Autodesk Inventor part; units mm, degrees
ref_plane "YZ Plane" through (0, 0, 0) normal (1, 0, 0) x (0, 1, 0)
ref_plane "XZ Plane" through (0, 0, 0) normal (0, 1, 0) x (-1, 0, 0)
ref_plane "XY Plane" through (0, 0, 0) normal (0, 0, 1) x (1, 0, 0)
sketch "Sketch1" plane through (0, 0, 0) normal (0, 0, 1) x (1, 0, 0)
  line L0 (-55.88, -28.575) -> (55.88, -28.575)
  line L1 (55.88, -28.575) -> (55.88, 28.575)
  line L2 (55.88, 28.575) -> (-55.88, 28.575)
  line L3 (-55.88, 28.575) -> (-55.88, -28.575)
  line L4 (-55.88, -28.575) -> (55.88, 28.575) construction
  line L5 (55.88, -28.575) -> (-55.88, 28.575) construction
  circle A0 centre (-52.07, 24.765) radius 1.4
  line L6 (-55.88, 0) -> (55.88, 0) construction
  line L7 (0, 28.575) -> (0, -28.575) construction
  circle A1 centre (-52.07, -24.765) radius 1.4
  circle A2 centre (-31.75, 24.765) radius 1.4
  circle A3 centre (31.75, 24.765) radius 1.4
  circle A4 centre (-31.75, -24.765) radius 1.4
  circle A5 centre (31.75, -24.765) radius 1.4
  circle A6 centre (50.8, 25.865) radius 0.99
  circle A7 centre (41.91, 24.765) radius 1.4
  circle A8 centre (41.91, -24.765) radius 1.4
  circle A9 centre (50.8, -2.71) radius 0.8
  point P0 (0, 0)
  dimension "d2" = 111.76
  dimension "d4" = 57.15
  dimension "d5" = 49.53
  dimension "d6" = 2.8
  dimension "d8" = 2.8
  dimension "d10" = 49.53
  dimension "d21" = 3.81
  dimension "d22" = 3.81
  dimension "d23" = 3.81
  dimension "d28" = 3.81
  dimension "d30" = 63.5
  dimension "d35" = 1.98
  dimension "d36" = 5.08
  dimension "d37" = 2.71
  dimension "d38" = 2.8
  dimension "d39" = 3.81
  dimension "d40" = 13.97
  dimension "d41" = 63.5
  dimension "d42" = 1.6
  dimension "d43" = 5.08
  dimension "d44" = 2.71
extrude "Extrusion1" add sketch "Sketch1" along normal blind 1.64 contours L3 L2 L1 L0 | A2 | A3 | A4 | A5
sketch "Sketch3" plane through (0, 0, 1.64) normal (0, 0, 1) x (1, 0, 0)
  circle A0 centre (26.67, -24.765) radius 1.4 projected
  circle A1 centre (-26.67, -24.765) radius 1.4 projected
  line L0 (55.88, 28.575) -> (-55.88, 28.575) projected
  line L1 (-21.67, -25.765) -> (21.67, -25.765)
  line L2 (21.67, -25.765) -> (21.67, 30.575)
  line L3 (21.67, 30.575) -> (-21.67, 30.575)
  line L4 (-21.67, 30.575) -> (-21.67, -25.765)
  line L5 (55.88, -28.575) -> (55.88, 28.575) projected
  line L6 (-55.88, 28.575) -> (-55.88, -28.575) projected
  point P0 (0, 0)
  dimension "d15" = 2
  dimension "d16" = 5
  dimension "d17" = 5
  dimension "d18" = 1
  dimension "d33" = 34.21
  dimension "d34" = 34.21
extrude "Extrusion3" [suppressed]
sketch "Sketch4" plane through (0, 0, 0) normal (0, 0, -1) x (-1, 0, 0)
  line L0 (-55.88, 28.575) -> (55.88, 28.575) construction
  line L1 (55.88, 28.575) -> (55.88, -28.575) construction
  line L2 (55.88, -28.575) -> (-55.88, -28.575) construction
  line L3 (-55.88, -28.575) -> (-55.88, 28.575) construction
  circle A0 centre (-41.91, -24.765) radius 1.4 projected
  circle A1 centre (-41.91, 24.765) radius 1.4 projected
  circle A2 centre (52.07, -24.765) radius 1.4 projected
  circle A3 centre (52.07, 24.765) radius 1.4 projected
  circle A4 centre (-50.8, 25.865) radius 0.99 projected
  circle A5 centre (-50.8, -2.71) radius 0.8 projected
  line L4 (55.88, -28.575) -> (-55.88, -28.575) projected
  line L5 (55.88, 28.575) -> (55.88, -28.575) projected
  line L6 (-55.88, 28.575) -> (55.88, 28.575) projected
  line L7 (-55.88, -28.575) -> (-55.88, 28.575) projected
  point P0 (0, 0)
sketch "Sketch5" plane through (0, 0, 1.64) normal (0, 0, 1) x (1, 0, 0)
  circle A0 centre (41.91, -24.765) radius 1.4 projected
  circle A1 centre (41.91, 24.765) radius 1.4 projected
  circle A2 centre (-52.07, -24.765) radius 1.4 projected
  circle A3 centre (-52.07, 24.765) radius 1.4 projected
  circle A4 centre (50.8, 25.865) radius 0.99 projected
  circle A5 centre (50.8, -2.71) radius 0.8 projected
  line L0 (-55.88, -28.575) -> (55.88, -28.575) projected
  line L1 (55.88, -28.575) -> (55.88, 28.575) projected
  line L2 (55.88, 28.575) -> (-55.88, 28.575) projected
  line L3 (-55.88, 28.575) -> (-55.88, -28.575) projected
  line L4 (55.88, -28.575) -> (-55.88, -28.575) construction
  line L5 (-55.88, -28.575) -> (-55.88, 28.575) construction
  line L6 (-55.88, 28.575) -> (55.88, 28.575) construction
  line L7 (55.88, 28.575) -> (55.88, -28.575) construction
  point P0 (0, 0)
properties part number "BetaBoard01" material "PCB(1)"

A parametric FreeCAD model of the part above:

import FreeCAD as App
import Part
import Sketcher

V = App.Vector
Q = App.Units.Quantity


def add_polygon(sketch, points):
    """Adds a closed chain of lines whose ends are joined by coincident constraints."""
    first, n = sketch.GeometryCount, len(points)
    for a, b in zip(points, points[1:] + points[:1]):
        sketch.addGeometry(Part.LineSegment(App.Vector(*a, 0), App.Vector(*b, 0)), False)
    for i in range(n):
        sketch.addConstraint(Sketcher.Constraint("Coincident", first + i, 2, first + (i + 1) % n, 1))

doc = App.newDocument("Part")
params = doc.addObject("Spreadsheet::Sheet", "Params")
for row, (alias, value) in enumerate([
    ("sketch1_diameter", "0.063 in"),
    ("sketch1_width", "4.4 in"),
    ("sketch1_height", "2.25 in"),
    ("pad1_length", "1.64 mm"),
], start=1):
    params.set(f"A{row}", alias)
    params.set(f"B{row}", "=" + value)
    params.setAlias(f"B{row}", alias)

body = doc.addObject("PartDesign::Body", "Body")

# Sketch on XY plane
sketch1 = body.newObject("Sketcher::SketchObject", "Sketch")
sketch1.AttachmentSupport = (doc.getObject("XY_Plane"), [""])
sketch1.MapMode = "FlatFace"
add_polygon(sketch1, [(-55.88, 28.575), (-55.88, -28.575), (55.88, -28.575), (55.88, 28.575)])  # lines 0-3
sketch1.addGeometry(Part.Circle(V(-52.07, -24.765, 0), V(0, 0, 1), 1.4), False)  # 4
sketch1.addGeometry(Part.Circle(V(41.91, -24.765, 0), V(0, 0, 1), 1.4), False)  # 5
sketch1.addGeometry(Part.Circle(V(50.8, -2.71, 0), V(0, 0, 1), 0.8), False)  # 6
sketch1.addGeometry(Part.Circle(V(-52.07, 24.765, 0), V(0, 0, 1), 1.4), False)  # 7
sketch1.addGeometry(Part.Circle(V(41.91, 24.765, 0), V(0, 0, 1), 1.4), False)  # 8
sketch1.addGeometry(Part.Circle(V(50.8, 25.865, 0), V(0, 0, 1), 0.99), False)  # 9
sketch1.addConstraint(Sketcher.Constraint("Vertical", 0))
sketch1.addConstraint(Sketcher.Constraint("Horizontal", 1))
sketch1.addConstraint(Sketcher.Constraint("Vertical", 2))
sketch1.addConstraint(Sketcher.Constraint("Horizontal", 3))
sketch1.addConstraint(Sketcher.Constraint("Equal", 4, 5))
sketch1.addConstraint(Sketcher.Constraint("Equal", 5, 7))
sketch1.addConstraint(Sketcher.Constraint("Equal", 7, 8))
sketch1.addConstraint(Sketcher.Constraint("Symmetric", 0, 2, 2, 2, -1, 1))
sketch1.addConstraint(Sketcher.Constraint("Symmetric", 4, 3, 7, 3, -1))
sketch1.addConstraint(Sketcher.Constraint("Symmetric", 5, 3, 8, 3, -1))
sketch1.addConstraint(Sketcher.Constraint("Horizontal", 4, 3, 5, 3))
sketch1.addConstraint(Sketcher.Constraint("Vertical", 6, 3, 9, 3))
sketch1.addConstraint(Sketcher.Constraint("Diameter", 6, Q("0.063 in")))
sketch1.addConstraint(Sketcher.Constraint("DistanceX", 1, 1, 1, 2, Q("4.4 in")))
sketch1.addConstraint(Sketcher.Constraint("DistanceY", 0, 2, 0, 1, Q("2.25 in")))
sketch1.addConstraint(Sketcher.Constraint("DistanceX", 6, 3, 1, 2, Q("0.2 in")))
sketch1.addConstraint(Sketcher.Constraint("Diameter", 4, 2.8))
sketch1.addConstraint(Sketcher.Constraint("Diameter", 9, 1.98))
sketch1.addConstraint(Sketcher.Constraint("DistanceY", 4, 3, 7, 3, Q("1.95 in")))
sketch1.addConstraint(Sketcher.Constraint("DistanceX", 0, 2, 4, 3, Q("0.15 in")))
sketch1.addConstraint(Sketcher.Constraint("DistanceX", 5, 3, 1, 2, Q("0.55 in")))
sketch1.addConstraint(Sketcher.Constraint("DistanceY", 6, 3, -1, 1, Q("0.1067 in")))
sketch1.addConstraint(Sketcher.Constraint("DistanceY", 9, 3, 2, 2, Q("0.1067 in")))
sketch1.setExpression("Constraints[16]", "Params.sketch1_diameter")
sketch1.setExpression("Constraints[17]", "Params.sketch1_width")
sketch1.setExpression("Constraints[18]", "Params.sketch1_height")
pad1 = body.newObject("PartDesign::Pad", "Pad")
pad1.Profile = sketch1
pad1.setExpression("Length", "Params.pad1_length")

doc.recompute()
